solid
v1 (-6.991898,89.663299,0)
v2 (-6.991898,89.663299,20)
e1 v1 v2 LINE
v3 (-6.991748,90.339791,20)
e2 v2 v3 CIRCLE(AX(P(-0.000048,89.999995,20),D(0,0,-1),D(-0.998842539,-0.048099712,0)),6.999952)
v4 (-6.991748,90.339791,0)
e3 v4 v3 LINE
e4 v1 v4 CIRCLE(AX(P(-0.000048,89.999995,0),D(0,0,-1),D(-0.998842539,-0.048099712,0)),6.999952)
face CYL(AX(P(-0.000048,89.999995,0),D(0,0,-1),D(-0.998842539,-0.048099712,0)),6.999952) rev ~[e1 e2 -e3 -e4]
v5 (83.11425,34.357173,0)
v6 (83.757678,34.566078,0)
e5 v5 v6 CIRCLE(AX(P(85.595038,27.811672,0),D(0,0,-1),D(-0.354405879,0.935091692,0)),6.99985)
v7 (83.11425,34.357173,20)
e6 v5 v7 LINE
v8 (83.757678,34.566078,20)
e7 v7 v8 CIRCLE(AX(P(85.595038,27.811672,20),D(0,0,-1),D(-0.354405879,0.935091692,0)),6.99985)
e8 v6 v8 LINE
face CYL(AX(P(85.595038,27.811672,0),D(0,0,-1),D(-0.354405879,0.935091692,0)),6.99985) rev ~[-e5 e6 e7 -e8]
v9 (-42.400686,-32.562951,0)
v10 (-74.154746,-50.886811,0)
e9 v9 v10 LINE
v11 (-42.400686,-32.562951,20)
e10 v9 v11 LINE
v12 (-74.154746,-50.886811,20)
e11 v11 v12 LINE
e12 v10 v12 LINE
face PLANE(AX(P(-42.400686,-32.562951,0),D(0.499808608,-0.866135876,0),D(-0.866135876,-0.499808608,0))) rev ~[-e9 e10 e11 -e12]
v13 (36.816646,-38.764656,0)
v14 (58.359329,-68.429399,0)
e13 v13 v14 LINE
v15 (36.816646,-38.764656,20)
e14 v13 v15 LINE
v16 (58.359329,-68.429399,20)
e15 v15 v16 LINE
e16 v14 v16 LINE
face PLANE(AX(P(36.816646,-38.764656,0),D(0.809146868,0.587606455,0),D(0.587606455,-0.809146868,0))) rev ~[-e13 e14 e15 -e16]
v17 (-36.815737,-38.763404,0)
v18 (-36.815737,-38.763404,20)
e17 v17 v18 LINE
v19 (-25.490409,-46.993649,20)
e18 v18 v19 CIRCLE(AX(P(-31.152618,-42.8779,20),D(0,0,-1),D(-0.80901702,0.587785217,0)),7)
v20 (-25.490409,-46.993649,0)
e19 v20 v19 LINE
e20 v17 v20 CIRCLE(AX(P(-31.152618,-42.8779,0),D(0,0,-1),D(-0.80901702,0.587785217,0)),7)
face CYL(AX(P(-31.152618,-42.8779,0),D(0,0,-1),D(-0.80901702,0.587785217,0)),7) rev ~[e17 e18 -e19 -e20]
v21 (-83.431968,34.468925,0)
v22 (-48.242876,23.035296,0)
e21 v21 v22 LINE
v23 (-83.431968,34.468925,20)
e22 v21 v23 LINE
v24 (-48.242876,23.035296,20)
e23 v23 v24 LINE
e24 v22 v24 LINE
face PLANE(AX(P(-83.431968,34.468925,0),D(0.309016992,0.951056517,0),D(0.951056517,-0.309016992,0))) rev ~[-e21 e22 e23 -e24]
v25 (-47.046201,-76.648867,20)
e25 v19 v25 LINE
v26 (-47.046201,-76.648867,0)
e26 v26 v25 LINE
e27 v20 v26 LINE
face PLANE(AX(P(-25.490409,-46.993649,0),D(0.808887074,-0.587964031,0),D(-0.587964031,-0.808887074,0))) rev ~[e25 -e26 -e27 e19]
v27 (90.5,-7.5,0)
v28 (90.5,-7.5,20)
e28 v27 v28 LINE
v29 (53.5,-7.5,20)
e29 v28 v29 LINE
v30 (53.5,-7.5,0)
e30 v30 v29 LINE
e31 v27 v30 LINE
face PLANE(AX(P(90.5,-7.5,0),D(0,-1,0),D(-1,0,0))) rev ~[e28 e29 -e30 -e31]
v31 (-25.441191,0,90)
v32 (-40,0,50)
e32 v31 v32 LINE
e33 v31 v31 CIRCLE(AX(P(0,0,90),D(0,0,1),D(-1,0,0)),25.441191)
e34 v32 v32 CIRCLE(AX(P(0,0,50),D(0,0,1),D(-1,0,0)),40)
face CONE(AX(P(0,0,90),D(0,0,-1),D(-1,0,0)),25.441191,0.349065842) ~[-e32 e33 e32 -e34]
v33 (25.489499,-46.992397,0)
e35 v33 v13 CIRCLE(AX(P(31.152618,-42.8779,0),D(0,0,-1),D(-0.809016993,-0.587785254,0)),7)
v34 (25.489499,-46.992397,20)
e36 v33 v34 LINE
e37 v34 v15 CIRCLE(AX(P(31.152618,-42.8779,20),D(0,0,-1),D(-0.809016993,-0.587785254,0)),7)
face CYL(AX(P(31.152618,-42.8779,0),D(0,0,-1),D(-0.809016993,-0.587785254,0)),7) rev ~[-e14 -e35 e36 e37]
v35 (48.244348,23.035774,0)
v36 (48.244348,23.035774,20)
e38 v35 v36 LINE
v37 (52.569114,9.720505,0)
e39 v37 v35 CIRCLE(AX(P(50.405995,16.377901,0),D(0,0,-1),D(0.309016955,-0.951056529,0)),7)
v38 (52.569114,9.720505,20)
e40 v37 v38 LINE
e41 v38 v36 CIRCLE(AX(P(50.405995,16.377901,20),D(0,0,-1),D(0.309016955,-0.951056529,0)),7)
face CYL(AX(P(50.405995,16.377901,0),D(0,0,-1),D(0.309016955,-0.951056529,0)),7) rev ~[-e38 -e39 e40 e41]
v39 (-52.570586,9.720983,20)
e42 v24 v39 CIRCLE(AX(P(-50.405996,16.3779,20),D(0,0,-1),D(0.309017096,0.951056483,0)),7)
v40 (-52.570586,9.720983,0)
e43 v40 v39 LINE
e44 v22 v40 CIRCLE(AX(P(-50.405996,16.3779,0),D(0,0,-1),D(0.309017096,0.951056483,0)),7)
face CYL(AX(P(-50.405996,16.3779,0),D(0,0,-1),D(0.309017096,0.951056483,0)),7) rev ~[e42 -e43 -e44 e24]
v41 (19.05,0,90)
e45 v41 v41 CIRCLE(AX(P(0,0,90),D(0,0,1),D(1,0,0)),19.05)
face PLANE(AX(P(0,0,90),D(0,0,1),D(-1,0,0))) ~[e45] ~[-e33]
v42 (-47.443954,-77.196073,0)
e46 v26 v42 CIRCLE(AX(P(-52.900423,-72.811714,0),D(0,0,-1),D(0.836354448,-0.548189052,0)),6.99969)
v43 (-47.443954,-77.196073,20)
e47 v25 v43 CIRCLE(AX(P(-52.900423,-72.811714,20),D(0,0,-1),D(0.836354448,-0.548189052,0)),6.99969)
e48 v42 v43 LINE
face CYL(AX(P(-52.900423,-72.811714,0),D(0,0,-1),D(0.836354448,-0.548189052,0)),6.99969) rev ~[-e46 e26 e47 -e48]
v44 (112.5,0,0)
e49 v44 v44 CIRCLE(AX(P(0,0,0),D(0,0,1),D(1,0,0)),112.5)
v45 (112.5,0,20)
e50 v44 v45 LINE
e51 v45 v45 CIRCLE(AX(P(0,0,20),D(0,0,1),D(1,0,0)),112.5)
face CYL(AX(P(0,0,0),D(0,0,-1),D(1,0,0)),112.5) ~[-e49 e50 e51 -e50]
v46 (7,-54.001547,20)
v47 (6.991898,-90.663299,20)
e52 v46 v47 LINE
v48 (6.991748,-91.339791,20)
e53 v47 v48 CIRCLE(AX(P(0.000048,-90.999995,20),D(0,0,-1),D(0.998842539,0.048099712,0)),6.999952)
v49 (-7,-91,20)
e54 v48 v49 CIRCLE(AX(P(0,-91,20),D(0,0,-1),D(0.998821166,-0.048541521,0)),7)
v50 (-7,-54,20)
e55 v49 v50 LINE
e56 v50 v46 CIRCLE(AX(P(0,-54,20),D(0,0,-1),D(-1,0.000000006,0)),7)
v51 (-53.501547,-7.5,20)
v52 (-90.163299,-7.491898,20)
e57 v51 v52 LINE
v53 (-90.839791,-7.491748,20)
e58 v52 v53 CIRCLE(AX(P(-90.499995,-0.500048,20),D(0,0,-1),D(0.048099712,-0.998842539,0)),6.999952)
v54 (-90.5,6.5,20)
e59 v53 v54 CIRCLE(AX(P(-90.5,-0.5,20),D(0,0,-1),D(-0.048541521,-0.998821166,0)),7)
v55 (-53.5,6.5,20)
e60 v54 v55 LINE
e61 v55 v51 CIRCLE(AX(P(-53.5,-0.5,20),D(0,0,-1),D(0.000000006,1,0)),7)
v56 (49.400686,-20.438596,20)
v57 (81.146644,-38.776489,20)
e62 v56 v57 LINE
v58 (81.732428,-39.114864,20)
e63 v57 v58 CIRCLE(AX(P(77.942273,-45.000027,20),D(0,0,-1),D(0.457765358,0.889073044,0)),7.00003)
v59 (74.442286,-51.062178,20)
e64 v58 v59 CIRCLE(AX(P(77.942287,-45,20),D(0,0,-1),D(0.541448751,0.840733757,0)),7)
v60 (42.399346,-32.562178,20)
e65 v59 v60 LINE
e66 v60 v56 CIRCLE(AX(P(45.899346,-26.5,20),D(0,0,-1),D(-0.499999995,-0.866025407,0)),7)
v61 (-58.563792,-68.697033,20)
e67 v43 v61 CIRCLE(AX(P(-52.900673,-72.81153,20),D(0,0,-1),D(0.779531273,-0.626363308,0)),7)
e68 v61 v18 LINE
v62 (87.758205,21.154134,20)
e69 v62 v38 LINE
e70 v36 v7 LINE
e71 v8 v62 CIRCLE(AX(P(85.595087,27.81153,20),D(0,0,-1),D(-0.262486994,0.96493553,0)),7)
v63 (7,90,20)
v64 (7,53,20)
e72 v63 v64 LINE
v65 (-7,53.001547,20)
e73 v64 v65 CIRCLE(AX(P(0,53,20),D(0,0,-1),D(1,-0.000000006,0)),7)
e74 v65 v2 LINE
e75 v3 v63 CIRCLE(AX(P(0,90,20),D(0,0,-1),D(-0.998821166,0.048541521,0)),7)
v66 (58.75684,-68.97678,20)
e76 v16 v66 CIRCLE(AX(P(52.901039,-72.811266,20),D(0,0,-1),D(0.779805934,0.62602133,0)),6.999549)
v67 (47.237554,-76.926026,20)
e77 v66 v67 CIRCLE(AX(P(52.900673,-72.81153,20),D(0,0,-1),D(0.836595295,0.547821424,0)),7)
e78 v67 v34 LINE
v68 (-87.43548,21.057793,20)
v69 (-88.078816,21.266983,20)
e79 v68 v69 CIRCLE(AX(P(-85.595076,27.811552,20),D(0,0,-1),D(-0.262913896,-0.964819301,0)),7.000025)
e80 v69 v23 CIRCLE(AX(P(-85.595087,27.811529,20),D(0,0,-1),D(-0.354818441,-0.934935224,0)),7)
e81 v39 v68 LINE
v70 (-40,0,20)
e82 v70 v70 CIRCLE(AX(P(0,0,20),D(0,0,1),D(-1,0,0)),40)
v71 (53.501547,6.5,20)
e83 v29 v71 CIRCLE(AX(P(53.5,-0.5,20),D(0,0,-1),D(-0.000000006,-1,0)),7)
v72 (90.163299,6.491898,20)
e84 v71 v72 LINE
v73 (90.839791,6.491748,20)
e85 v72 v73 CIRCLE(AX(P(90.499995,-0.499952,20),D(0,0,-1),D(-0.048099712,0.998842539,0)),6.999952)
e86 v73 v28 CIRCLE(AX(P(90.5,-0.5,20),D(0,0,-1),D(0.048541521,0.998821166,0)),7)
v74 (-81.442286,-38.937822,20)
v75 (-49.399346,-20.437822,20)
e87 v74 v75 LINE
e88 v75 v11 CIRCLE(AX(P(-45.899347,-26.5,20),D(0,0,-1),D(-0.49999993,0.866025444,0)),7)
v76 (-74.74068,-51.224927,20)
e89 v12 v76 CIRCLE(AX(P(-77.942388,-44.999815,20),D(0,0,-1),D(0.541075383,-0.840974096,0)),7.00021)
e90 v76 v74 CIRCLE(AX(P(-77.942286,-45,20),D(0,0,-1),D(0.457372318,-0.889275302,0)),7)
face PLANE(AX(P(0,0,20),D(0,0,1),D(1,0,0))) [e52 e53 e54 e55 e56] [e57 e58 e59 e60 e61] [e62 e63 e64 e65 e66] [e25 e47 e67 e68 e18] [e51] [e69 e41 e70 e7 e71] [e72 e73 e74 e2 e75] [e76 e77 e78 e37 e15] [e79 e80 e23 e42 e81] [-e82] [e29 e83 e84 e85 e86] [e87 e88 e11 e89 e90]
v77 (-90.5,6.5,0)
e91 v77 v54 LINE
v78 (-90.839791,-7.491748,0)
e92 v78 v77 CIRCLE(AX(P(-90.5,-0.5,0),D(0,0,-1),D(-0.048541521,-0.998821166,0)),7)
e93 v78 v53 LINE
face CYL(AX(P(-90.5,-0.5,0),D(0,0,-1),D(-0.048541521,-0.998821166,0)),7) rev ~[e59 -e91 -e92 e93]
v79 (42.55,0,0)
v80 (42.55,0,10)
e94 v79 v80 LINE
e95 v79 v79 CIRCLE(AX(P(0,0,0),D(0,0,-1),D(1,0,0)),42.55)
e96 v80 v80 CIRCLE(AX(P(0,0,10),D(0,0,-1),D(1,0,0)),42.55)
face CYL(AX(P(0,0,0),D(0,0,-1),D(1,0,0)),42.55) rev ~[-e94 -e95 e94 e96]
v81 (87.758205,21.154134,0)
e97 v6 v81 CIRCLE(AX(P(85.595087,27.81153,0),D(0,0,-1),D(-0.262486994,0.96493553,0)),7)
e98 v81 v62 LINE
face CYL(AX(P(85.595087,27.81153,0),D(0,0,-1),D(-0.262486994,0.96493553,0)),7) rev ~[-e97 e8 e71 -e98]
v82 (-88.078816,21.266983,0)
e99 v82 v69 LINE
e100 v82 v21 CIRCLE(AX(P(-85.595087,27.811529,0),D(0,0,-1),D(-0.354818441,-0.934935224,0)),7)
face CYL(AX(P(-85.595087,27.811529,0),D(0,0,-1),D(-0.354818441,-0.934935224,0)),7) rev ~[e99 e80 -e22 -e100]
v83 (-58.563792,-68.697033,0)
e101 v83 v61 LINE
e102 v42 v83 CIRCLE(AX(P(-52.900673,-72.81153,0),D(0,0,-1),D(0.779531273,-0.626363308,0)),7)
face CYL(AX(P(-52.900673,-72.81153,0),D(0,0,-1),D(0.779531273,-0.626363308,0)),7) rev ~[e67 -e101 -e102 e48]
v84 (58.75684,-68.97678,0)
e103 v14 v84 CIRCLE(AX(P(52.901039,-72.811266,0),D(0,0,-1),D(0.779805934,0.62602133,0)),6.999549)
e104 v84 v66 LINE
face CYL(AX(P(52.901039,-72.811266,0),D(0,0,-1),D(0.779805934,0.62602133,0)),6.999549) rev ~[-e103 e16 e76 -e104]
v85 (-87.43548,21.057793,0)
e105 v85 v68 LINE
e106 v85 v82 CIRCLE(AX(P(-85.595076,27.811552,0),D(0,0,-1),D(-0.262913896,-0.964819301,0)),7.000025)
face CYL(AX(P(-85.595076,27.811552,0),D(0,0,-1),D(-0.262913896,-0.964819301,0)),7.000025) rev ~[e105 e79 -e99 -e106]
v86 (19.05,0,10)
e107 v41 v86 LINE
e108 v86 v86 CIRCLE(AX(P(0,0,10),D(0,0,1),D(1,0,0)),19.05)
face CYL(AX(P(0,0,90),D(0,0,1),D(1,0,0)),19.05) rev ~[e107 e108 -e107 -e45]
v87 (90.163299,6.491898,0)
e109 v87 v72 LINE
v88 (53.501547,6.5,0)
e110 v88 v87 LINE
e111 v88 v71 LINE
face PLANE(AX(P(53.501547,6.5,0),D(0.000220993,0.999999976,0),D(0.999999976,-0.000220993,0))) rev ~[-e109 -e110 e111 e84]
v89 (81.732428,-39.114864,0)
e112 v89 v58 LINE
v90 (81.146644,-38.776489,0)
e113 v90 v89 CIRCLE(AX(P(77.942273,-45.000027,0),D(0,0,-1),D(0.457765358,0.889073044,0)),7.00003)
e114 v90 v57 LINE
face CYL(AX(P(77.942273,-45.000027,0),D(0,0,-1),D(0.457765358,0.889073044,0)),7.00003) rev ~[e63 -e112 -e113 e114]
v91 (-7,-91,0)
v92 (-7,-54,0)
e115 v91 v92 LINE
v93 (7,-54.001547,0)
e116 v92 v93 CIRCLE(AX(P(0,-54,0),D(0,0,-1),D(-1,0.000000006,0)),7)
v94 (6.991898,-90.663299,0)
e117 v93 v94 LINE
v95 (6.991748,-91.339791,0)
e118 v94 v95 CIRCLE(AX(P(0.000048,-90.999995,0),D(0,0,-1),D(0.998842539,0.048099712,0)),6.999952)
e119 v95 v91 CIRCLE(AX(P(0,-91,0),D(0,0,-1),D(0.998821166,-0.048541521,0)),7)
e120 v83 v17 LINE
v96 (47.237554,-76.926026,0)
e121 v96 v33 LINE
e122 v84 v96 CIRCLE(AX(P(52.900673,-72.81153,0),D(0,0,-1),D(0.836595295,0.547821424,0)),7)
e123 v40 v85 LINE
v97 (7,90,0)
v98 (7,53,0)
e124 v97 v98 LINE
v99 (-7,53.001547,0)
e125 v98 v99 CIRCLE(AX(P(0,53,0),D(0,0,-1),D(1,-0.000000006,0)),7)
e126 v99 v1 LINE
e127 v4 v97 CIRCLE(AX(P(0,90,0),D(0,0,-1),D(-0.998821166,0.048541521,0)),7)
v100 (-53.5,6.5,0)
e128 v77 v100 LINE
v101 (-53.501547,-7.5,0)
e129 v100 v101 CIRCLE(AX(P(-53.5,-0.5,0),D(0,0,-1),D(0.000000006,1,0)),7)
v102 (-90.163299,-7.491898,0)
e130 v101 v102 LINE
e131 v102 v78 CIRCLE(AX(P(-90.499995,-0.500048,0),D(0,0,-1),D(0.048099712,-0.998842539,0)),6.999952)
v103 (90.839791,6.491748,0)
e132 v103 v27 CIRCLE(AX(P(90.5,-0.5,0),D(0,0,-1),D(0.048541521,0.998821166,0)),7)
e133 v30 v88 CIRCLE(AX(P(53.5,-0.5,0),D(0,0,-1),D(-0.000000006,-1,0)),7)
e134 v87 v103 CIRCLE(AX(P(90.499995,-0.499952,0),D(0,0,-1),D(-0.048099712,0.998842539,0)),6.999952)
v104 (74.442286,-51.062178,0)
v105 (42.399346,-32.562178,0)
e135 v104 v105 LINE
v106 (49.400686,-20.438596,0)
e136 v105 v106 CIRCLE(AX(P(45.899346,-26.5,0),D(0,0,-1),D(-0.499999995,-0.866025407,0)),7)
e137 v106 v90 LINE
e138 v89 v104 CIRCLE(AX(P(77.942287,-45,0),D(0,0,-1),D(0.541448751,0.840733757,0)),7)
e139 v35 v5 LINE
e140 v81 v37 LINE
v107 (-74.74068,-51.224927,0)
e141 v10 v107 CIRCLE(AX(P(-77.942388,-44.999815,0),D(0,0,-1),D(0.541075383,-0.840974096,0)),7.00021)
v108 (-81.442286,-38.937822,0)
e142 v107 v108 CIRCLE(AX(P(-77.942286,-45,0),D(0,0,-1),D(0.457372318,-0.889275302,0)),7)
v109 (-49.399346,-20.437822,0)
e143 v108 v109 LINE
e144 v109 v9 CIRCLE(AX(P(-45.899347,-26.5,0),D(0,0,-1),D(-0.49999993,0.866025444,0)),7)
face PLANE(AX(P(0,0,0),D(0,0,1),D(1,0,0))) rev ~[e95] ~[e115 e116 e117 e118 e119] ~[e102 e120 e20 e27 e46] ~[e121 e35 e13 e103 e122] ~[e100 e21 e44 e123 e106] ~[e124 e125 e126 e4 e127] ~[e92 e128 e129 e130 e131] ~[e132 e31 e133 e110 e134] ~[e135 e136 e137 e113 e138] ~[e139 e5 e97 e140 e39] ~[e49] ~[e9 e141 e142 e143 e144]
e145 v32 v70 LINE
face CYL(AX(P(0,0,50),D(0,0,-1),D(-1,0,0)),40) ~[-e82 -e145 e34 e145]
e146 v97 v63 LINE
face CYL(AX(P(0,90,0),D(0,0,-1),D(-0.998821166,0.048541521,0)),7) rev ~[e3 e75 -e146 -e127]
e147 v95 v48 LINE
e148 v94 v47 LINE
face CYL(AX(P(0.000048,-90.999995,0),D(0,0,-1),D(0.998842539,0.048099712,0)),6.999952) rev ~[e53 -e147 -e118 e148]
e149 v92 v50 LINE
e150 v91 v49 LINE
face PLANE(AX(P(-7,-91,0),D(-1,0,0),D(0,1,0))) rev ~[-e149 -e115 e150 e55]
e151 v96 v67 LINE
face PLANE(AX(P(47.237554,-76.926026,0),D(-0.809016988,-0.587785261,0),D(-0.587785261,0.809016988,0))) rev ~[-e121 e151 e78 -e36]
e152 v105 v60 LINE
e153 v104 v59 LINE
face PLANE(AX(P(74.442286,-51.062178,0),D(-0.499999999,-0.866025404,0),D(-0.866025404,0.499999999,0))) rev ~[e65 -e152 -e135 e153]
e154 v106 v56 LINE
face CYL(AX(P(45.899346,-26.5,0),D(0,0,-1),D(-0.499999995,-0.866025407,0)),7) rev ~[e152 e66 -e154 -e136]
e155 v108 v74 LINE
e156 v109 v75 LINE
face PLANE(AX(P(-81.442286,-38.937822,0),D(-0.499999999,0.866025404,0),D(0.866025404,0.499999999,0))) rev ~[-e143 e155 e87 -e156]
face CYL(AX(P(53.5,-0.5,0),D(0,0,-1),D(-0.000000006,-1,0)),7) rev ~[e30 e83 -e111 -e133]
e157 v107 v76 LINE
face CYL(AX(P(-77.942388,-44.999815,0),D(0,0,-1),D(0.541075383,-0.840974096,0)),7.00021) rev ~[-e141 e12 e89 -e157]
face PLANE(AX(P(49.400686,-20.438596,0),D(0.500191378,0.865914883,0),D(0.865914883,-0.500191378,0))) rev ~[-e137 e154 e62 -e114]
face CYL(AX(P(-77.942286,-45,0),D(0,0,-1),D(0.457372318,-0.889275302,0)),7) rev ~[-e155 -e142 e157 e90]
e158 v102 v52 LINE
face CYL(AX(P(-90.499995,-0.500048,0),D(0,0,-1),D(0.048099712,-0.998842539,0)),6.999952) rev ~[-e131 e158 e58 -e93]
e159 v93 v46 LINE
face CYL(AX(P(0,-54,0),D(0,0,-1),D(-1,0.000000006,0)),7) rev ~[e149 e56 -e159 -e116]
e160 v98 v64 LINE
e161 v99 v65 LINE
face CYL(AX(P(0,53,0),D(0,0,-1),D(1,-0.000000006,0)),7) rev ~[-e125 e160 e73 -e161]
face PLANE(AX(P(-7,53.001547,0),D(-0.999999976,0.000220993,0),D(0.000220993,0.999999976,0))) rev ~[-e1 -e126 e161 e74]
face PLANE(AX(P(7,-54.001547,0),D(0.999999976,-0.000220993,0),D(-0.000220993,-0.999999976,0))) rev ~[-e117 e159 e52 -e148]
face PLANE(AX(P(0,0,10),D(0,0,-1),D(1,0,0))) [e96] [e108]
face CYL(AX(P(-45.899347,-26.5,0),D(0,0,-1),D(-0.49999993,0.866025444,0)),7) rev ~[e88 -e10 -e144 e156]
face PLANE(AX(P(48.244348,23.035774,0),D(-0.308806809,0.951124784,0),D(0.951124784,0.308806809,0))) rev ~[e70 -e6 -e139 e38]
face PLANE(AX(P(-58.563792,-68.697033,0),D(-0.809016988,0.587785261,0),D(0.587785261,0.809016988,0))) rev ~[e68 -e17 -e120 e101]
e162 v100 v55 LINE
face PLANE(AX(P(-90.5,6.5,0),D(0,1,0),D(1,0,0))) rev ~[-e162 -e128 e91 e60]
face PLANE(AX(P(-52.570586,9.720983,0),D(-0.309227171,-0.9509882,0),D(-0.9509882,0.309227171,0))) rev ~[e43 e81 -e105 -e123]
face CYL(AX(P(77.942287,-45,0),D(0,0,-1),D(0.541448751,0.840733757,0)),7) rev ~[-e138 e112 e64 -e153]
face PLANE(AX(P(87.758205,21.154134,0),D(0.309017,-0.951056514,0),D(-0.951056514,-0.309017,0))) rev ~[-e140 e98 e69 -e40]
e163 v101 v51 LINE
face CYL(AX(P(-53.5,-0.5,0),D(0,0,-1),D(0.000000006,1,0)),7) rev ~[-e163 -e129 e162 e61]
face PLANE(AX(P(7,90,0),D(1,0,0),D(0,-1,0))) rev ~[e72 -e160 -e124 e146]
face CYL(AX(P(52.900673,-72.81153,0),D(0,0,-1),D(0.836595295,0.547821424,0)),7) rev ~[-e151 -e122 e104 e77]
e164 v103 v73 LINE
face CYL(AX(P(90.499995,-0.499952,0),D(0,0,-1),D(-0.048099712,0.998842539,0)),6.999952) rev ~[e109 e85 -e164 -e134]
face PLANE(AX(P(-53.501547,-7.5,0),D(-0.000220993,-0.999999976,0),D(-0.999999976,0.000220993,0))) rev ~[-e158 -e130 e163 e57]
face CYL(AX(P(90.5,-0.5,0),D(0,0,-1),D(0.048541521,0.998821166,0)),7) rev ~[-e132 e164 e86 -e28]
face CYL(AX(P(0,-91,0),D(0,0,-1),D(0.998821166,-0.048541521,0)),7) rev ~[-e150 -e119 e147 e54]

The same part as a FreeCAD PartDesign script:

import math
import FreeCAD as App
import Part
import Sketcher
Q = App.Units.Quantity

doc = App.newDocument("Part")
params = doc.addObject("Spreadsheet::Sheet", "Params")
for row, (alias, value) in enumerate([
    ("sketch1_diameter", "225 mm"),
    ("sketch1_radius", "7 mm"),
    ("sketch1_radius2", "7 mm"),
    ("sketch1_radius3", "7 mm"),
    ("sketch1_radius4", "7 mm"),
    ("pad1_length", "20 mm"),
    ("sketch2_width", "40 mm"),
    ("sketch2_height", "30 mm"),
    ("sketch2_height2", "70 mm"),
    ("revolution_angle", "360 deg"),
    ("sketch3_diameter", "38.1 mm"),
    ("sketch4_diameter", "85.1 mm"),
    ("pocket2_length", "10 mm"),
], start=1):
    params.set(f"A{row}", alias)
    params.set(f"B{row}", "=" + value)
    params.setAlias(f"B{row}", alias)

body = doc.addObject("PartDesign::Body", "Body")

sketch1 = body.newObject("Sketcher::SketchObject", "Sketch")
sketch1.AttachmentSupport = (doc.getObject("XY_Plane"), [""])
sketch1.MapMode = "FlatFace"
sketch1.addGeometry(Part.Circle(App.Vector(0, 0, 0), App.Vector(0, 0, 1), 112.5), False)
sketch1.addGeometry(Part.ArcOfCircle(Part.Circle(App.Vector(-52.900423, -72.811714, 0), App.Vector(0, 0, 1), 6.99969), math.radians(-38.782431), math.radians(-33.242863)), False)
sketch1.addGeometry(Part.ArcOfCircle(Part.Circle(App.Vector(-52.900673, -72.81153, 0), App.Vector(0, 0, 1), 7), math.radians(144), math.radians(321.217679)), False)
sketch1.addGeometry(Part.LineSegment(App.Vector(-58.563792, -68.697033, 0), App.Vector(-36.815737, -38.763404, 0)), False)
sketch1.addGeometry(Part.ArcOfCircle(Part.Circle(App.Vector(-31.152618, -42.8779, 0), App.Vector(0, 0, 1), 7), math.radians(-36.012667), math.radians(144.000003)), False)
sketch1.addGeometry(Part.LineSegment(App.Vector(-25.490409, -46.993649, 0), App.Vector(-47.046201, -76.648867, 0)), False)
sketch1.addGeometry(Part.ArcOfCircle(Part.Circle(App.Vector(-77.942388, -44.999815, 0), App.Vector(0, 0, 1), 7.00021), math.radians(-62.782276), math.radians(-57.243125)), False)
sketch1.addGeometry(Part.ArcOfCircle(Part.Circle(App.Vector(-77.942286, -45, 0), App.Vector(0, 0, 1), 7), math.radians(119.999998), math.radians(297.217678)), False)
sketch1.addGeometry(Part.LineSegment(App.Vector(-81.442286, -38.937822, 0), App.Vector(-49.399346, -20.437822, 0)), False)
sketch1.addGeometry(Part.ArcOfCircle(Part.Circle(App.Vector(-45.899347, -26.5, 0), App.Vector(0, 0, 1), 7), math.radians(-60.012659), math.radians(119.999995)), False)
sketch1.addGeometry(Part.LineSegment(App.Vector(-42.400686, -32.562951, 0), App.Vector(-74.154746, -50.886811, 0)), False)
sketch1.addGeometry(Part.ArcOfCircle(Part.Circle(App.Vector(-90.499995, -0.500048, 0), App.Vector(0, 0, 1), 6.999952), math.radians(-92.782383), math.radians(-87.243026)), False)
sketch1.addGeometry(Part.ArcOfCircle(Part.Circle(App.Vector(-90.5, -0.5, 0), App.Vector(0, 0, 1), 7), math.radians(89.999997), math.radians(267.217682)), False)
sketch1.addGeometry(Part.LineSegment(App.Vector(-90.5, 6.5, 0), App.Vector(-53.5, 6.5, 0)), False)
sketch1.addGeometry(Part.ArcOfCircle(Part.Circle(App.Vector(-53.5, -0.5, 0), App.Vector(0, 0, 1), 7), math.radians(-90.012662), math.radians(90)), False)
sketch1.addGeometry(Part.LineSegment(App.Vector(-53.501547, -7.5, 0), App.Vector(-90.163299, -7.491898, 0)), False)
sketch1.addGeometry(Part.ArcOfCircle(Part.Circle(App.Vector(0.000048, -90.999995, 0), App.Vector(0, 0, 1), 6.999952), math.radians(-2.782383), math.radians(2.756974)), False)
sketch1.addGeometry(Part.ArcOfCircle(Part.Circle(App.Vector(0, -91, 0), App.Vector(0, 0, 1), 7), math.radians(179.999997), math.radians(357.217682)), False)
sketch1.addGeometry(Part.LineSegment(App.Vector(-7, -91, 0), App.Vector(-7, -54, 0)), False)
sketch1.addGeometry(Part.ArcOfCircle(Part.Circle(App.Vector(0, -54, 0), App.Vector(0, 0, 1), 7), math.radians(-0.012662), math.radians(180)), False)
sketch1.addGeometry(Part.LineSegment(App.Vector(7, -54.001547, 0), App.Vector(6.991898, -90.663299, 0)), False)
sketch1.addGeometry(Part.ArcOfCircle(Part.Circle(App.Vector(52.901039, -72.811266, 0), App.Vector(0, 0, 1), 6.999549), math.radians(33.217516), math.radians(38.75719)), False)
sketch1.addGeometry(Part.ArcOfCircle(Part.Circle(App.Vector(52.900673, -72.81153, 0), App.Vector(0, 0, 1), 7), math.radians(-144.000005), math.radians(33.217682)), False)
sketch1.addGeometry(Part.LineSegment(App.Vector(47.237554, -76.926026, 0), App.Vector(25.489499, -46.992397, 0)), False)
sketch1.addGeometry(Part.ArcOfCircle(Part.Circle(App.Vector(31.152618, -42.8779, 0), App.Vector(0, 0, 1), 7), math.radians(35.987332), math.radians(216)), False)
sketch1.addGeometry(Part.LineSegment(App.Vector(36.816646, -38.764656, 0), App.Vector(58.359329, -68.429399, 0)), False)
sketch1.addGeometry(Part.ArcOfCircle(Part.Circle(App.Vector(77.942273, -45.000027, 0), App.Vector(0, 0, 1), 7.00003), math.radians(57.217706), math.radians(62.756996)), False)
sketch1.addGeometry(Part.ArcOfCircle(Part.Circle(App.Vector(77.942287, -45, 0), App.Vector(0, 0, 1), 7), math.radians(-120.000006), math.radians(57.217684)), False)
sketch1.addGeometry(Part.LineSegment(App.Vector(74.442286, -51.062178, 0), App.Vector(42.399346, -32.562178, 0)), False)
sketch1.addGeometry(Part.ArcOfCircle(Part.Circle(App.Vector(45.899346, -26.5, 0), App.Vector(0, 0, 1), 7), math.radians(59.987335), math.radians(240)), False)
sketch1.addGeometry(Part.LineSegment(App.Vector(49.400686, -20.438596, 0), App.Vector(81.146644, -38.776489, 0)), False)
sketch1.addGeometry(Part.ArcOfCircle(Part.Circle(App.Vector(-85.595076, 27.811552, 0), App.Vector(0, 0, 1), 7.000025), math.radians(-110.782334), math.radians(-105.243033)), False)
sketch1.addGeometry(Part.ArcOfCircle(Part.Circle(App.Vector(-85.595087, 27.811529, 0), App.Vector(0, 0, 1), 7), math.radians(72), math.radians(249.217683)), False)
sketch1.addGeometry(Part.LineSegment(App.Vector(-83.431968, 34.468925, 0), App.Vector(-48.242876, 23.035296, 0)), False)
sketch1.addGeometry(Part.ArcOfCircle(Part.Circle(App.Vector(-50.405996, 16.3779, 0), App.Vector(0, 0, 1), 7), math.radians(-108.012663), math.radians(71.999994)), False)
sketch1.addGeometry(Part.LineSegment(App.Vector(-52.570586, 9.720983, 0), App.Vector(-87.43548, 21.057793, 0)), False)
sketch1.addGeometry(Part.LineSegment(App.Vector(7, 90, 0), App.Vector(7, 53, 0)), False)
sketch1.addGeometry(Part.ArcOfCircle(Part.Circle(App.Vector(0, 53, 0), App.Vector(0, 0, 1), 7), math.radians(179.987338), math.radians(360)), False)
sketch1.addGeometry(Part.LineSegment(App.Vector(-7, 53.001547, 0), App.Vector(-6.991898, 89.663299, 0)), False)
sketch1.addGeometry(Part.ArcOfCircle(Part.Circle(App.Vector(-0.000048, 89.999995, 0), App.Vector(0, 0, 1), 6.999952), math.radians(177.217617), math.radians(182.756974)), False)
sketch1.addGeometry(Part.ArcOfCircle(Part.Circle(App.Vector(0, 90, 0), App.Vector(0, 0, 1), 7), math.radians(-0.000003), math.radians(177.217682)), False)
sketch1.addGeometry(Part.ArcOfCircle(Part.Circle(App.Vector(90.499995, -0.499952, 0), App.Vector(0, 0, 1), 6.999952), math.radians(87.217617), math.radians(92.756974)), False)
sketch1.addGeometry(Part.ArcOfCircle(Part.Circle(App.Vector(90.5, -0.5, 0), App.Vector(0, 0, 1), 7), math.radians(-90.000003), math.radians(87.217682)), False)
sketch1.addGeometry(Part.LineSegment(App.Vector(90.5, -7.5, 0), App.Vector(53.5, -7.5, 0)), False)
sketch1.addGeometry(Part.ArcOfCircle(Part.Circle(App.Vector(53.5, -0.5, 0), App.Vector(0, 0, 1), 7), math.radians(89.987338), math.radians(270)), False)
sketch1.addGeometry(Part.LineSegment(App.Vector(53.501547, 6.5, 0), App.Vector(90.163299, 6.491898, 0)), False)
sketch1.addGeometry(Part.ArcOfCircle(Part.Circle(App.Vector(85.595038, 27.811672, 0), App.Vector(0, 0, 1), 6.99985), math.radians(105.217601), math.radians(110.757036)), False)
sketch1.addGeometry(Part.ArcOfCircle(Part.Circle(App.Vector(85.595087, 27.81153, 0), App.Vector(0, 0, 1), 7), math.radians(-72.000006), math.radians(105.217683)), False)
sketch1.addGeometry(Part.LineSegment(App.Vector(87.758205, 21.154134, 0), App.Vector(52.569114, 9.720505, 0)), False)
sketch1.addGeometry(Part.ArcOfCircle(Part.Circle(App.Vector(50.405995, 16.377901, 0), App.Vector(0, 0, 1), 7), math.radians(107.987336), math.radians(287.999998)), False)
sketch1.addGeometry(Part.LineSegment(App.Vector(48.244348, 23.035774, 0), App.Vector(83.11425, 34.357173, 0)), False)
sketch1.addConstraint(Sketcher.Constraint("Coincident", 1, 1, 2, 2))
sketch1.addConstraint(Sketcher.Constraint("Coincident", 2, 1, 3, 1))
sketch1.addConstraint(Sketcher.Constraint("Coincident", 3, 2, 4, 2))
sketch1.addConstraint(Sketcher.Constraint("Coincident", 4, 1, 5, 1))
sketch1.addConstraint(Sketcher.Constraint("Coincident", 5, 2, 1, 2))
sketch1.addConstraint(Sketcher.Constraint("Coincident", 6, 1, 7, 2))
sketch1.addConstraint(Sketcher.Constraint("Coincident", 7, 1, 8, 1))
sketch1.addConstraint(Sketcher.Constraint("Coincident", 8, 2, 9, 2))
sketch1.addConstraint(Sketcher.Constraint("Coincident", 9, 1, 10, 1))
sketch1.addConstraint(Sketcher.Constraint("Coincident", 10, 2, 6, 2))
sketch1.addConstraint(Sketcher.Constraint("Coincident", 11, 1, 12, 2))
sketch1.addConstraint(Sketcher.Constraint("Coincident", 12, 1, 13, 1))
sketch1.addConstraint(Sketcher.Constraint("Coincident", 13, 2, 14, 2))
sketch1.addConstraint(Sketcher.Constraint("Coincident", 14, 1, 15, 1))
sketch1.addConstraint(Sketcher.Constraint("Coincident", 15, 2, 11, 2))
sketch1.addConstraint(Sketcher.Constraint("Coincident", 16, 1, 17, 2))
sketch1.addConstraint(Sketcher.Constraint("Coincident", 17, 1, 18, 1))
sketch1.addConstraint(Sketcher.Constraint("Coincident", 18, 2, 19, 2))
sketch1.addConstraint(Sketcher.Constraint("Coincident", 19, 1, 20, 1))
sketch1.addConstraint(Sketcher.Constraint("Coincident", 20, 2, 16, 2))
sketch1.addConstraint(Sketcher.Constraint("Coincident", 21, 1, 22, 2))
sketch1.addConstraint(Sketcher.Constraint("Coincident", 22, 1, 23, 1))
sketch1.addConstraint(Sketcher.Constraint("Coincident", 23, 2, 24, 2))
sketch1.addConstraint(Sketcher.Constraint("Coincident", 24, 1, 25, 1))
sketch1.addConstraint(Sketcher.Constraint("Coincident", 25, 2, 21, 2))
sketch1.addConstraint(Sketcher.Constraint("Coincident", 26, 1, 27, 2))
sketch1.addConstraint(Sketcher.Constraint("Coincident", 27, 1, 28, 1))
sketch1.addConstraint(Sketcher.Constraint("Coincident", 28, 2, 29, 2))
sketch1.addConstraint(Sketcher.Constraint("Coincident", 29, 1, 30, 1))
sketch1.addConstraint(Sketcher.Constraint("Coincident", 30, 2, 26, 2))
sketch1.addConstraint(Sketcher.Constraint("Coincident", 31, 1, 32, 2))
sketch1.addConstraint(Sketcher.Constraint("Coincident", 32, 1, 33, 1))
sketch1.addConstraint(Sketcher.Constraint("Coincident", 33, 2, 34, 2))
sketch1.addConstraint(Sketcher.Constraint("Coincident", 34, 1, 35, 1))
sketch1.addConstraint(Sketcher.Constraint("Coincident", 35, 2, 31, 2))
sketch1.addConstraint(Sketcher.Constraint("Coincident", 36, 2, 37, 2))
sketch1.addConstraint(Sketcher.Constraint("Coincident", 37, 1, 38, 1))
sketch1.addConstraint(Sketcher.Constraint("Coincident", 38, 2, 39, 2))
sketch1.addConstraint(Sketcher.Constraint("Coincident", 39, 1, 40, 2))
sketch1.addConstraint(Sketcher.Constraint("Coincident", 40, 1, 36, 1))
sketch1.addConstraint(Sketcher.Constraint("Coincident", 41, 1, 42, 2))
sketch1.addConstraint(Sketcher.Constraint("Coincident", 42, 1, 43, 1))
sketch1.addConstraint(Sketcher.Constraint("Coincident", 43, 2, 44, 2))
sketch1.addConstraint(Sketcher.Constraint("Coincident", 44, 1, 45, 1))
sketch1.addConstraint(Sketcher.Constraint("Coincident", 45, 2, 41, 2))
sketch1.addConstraint(Sketcher.Constraint("Coincident", 46, 1, 47, 2))
sketch1.addConstraint(Sketcher.Constraint("Coincident", 47, 1, 48, 1))
sketch1.addConstraint(Sketcher.Constraint("Coincident", 48, 2, 49, 2))
sketch1.addConstraint(Sketcher.Constraint("Coincident", 49, 1, 50, 1))
sketch1.addConstraint(Sketcher.Constraint("Coincident", 50, 2, 46, 2))
sketch1.addConstraint(Sketcher.Constraint("Horizontal", 13))
sketch1.addConstraint(Sketcher.Constraint("Vertical", 18))
sketch1.addConstraint(Sketcher.Constraint("Vertical", 36))
sketch1.addConstraint(Sketcher.Constraint("Horizontal", 43))
sketch1.addConstraint(Sketcher.Constraint("Coincident", 0, 3, -1, 1))
sketch1.addConstraint(Sketcher.Constraint("PointOnObject", 17, 3, -2))
sketch1.addConstraint(Sketcher.Constraint("PointOnObject", 19, 3, -2))
sketch1.addConstraint(Sketcher.Constraint("PointOnObject", 37, 3, -2))
sketch1.addConstraint(Sketcher.Constraint("PointOnObject", 40, 3, -2))
sketch1.addConstraint(Sketcher.Constraint("Diameter", 0, 225.0))
sketch1.addConstraint(Sketcher.Constraint("Radius", 2, 7.0))
sketch1.addConstraint(Sketcher.Constraint("Radius", 4, 7.0))
sketch1.addConstraint(Sketcher.Constraint("Radius", 7, 7.0))
sketch1.addConstraint(Sketcher.Constraint("Radius", 9, 7.0))
sketch1.addConstraint(Sketcher.Constraint("Radius", 12, 7.0))
sketch1.addConstraint(Sketcher.Constraint("Radius", 14, 7.0))
sketch1.addConstraint(Sketcher.Constraint("Radius", 17, 7.0))
sketch1.addConstraint(Sketcher.Constraint("Radius", 22, 7.0))
sketch1.addConstraint(Sketcher.Constraint("Radius", 24, 7.0))
sketch1.addConstraint(Sketcher.Constraint("Radius", 27, 7.0))
sketch1.addConstraint(Sketcher.Constraint("Radius", 29, 7.0))
sketch1.addConstraint(Sketcher.Constraint("Radius", 32, 7.0))
sketch1.addConstraint(Sketcher.Constraint("Radius", 34, 7.0))
sketch1.addConstraint(Sketcher.Constraint("Radius", 37, 7.0))
sketch1.addConstraint(Sketcher.Constraint("Radius", 42, 7.0))
sketch1.addConstraint(Sketcher.Constraint("Radius", 44, 7.0))
sketch1.addConstraint(Sketcher.Constraint("Radius", 47, 7.0))
sketch1.addConstraint(Sketcher.Constraint("Radius", 49, 7.0))
sketch1.addConstraint(Sketcher.Constraint("DistanceX", 13, 1, 13, 2, 37.0))
sketch1.addConstraint(Sketcher.Constraint("DistanceX", 43, 2, 43, 1, 37.0))
sketch1.addConstraint(Sketcher.Constraint("DistanceY", 18, 1, 18, 2, 37.0))
sketch1.addConstraint(Sketcher.Constraint("DistanceY", 36, 2, 36, 1, 37.0))
sketch1.addConstraint(Sketcher.Constraint("Distance", 3, 37.000001))
sketch1.addConstraint(Sketcher.Constraint("Distance", 8, 37.0))
sketch1.addConstraint(Sketcher.Constraint("Distance", 23, 37.000001))
sketch1.addConstraint(Sketcher.Constraint("Distance", 28, 37.0))
sketch1.addConstraint(Sketcher.Constraint("Distance", 33, 37.000001))
sketch1.addConstraint(Sketcher.Constraint("Distance", 48, 37.0))
sketch1.addConstraint(Sketcher.Constraint("DistanceY", 7, 3, -1, 1, 45.0))
sketch1.addConstraint(Sketcher.Constraint("DistanceY", 17, 3, -1, 1, 91.0))
sketch1.addConstraint(Sketcher.Constraint("DistanceY", 19, 3, -1, 1, 54.0))
sketch1.addConstraint(Sketcher.Constraint("DistanceY", 27, 3, -1, 1, 45.0))
sketch1.addConstraint(Sketcher.Constraint("DistanceY", -1, 1, 37, 3, 53.0))
sketch1.addConstraint(Sketcher.Constraint("DistanceY", -1, 1, 40, 3, 90.0))
sketch1.addConstraint(Sketcher.Constraint("DistanceY", 17, 1, -1, 1, 91.0))
sketch1.addConstraint(Sketcher.Constraint("DistanceY", -1, 1, 36, 2, 53.0))
sketch1.addConstraint(Sketcher.Constraint("DistanceY", 9, 3, -1, 1, 26.5))
sketch1.addConstraint(Sketcher.Constraint("DistanceX", 12, 3, -1, 1, 90.5))
sketch1.addConstraint(Sketcher.Constraint("DistanceY", 12, 3, -1, 1, 0.5))
sketch1.addConstraint(Sketcher.Constraint("DistanceX", 14, 3, -1, 1, 53.5))
sketch1.addConstraint(Sketcher.Constraint("DistanceY", 29, 3, -1, 1, 26.5))
sketch1.addConstraint(Sketcher.Constraint("DistanceX", -1, 1, 42, 3, 90.5))
sketch1.addConstraint(Sketcher.Constraint("DistanceY", 42, 3, -1, 1, 0.5))
sketch1.addConstraint(Sketcher.Constraint("DistanceX", -1, 1, 44, 3, 53.5))
sketch1.addConstraint(Sketcher.Constraint("DistanceX", 12, 1, -1, 1, 90.5))
sketch1.addConstraint(Sketcher.Constraint("DistanceX", -1, 1, 42, 1, 90.5))
sketch1.addConstraint(Sketcher.Constraint("Radius", 1, 6.99969))
sketch1.addConstraint(Sketcher.Constraint("Radius", 6, 7.00021))
sketch1.addConstraint(Sketcher.Constraint("Radius", 21, 6.999549))
sketch1.addConstraint(Sketcher.Constraint("Radius", 26, 7.00003))
sketch1.addConstraint(Sketcher.Constraint("Radius", 46, 6.99985))
sketch1.addConstraint(Sketcher.Constraint("Radius", 11, 6.999952))
sketch1.addConstraint(Sketcher.Constraint("Radius", 16, 6.999952))
sketch1.addConstraint(Sketcher.Constraint("Radius", 31, 7.000025))
sketch1.addConstraint(Sketcher.Constraint("Radius", 39, 6.999952))
sketch1.addConstraint(Sketcher.Constraint("Radius", 41, 6.999952))
sketch1.addConstraint(Sketcher.Constraint("DistanceY", 4, 3, -1, 1, 42.8779))
sketch1.addConstraint(Sketcher.Constraint("DistanceY", 24, 3, -1, 1, 42.8779))
sketch1.addConstraint(Sketcher.Constraint("DistanceY", -1, 1, 34, 3, 16.3779))
sketch1.addConstraint(Sketcher.Constraint("DistanceY", -1, 1, 49, 3, 16.377901))
sketch1.addConstraint(Sketcher.Constraint("DistanceX", 5, 2, -1, 1, 47.046201))
sketch1.addConstraint(Sketcher.Constraint("DistanceX", 15, 2, -1, 1, 90.163299))
sketch1.addConstraint(Sketcher.Constraint("DistanceY", 20, 2, -1, 1, 90.663299))
sketch1.addConstraint(Sketcher.Constraint("DistanceX", -1, 1, 23, 2, 25.489499))
sketch1.addConstraint(Sketcher.Constraint("DistanceY", 25, 2, -1, 1, 68.429399))
sketch1.addConstraint(Sketcher.Constraint("DistanceY", -1, 1, 38, 2, 89.663299))
sketch1.addConstraint(Sketcher.Constraint("DistanceX", -1, 1, 45, 2, 90.163299))
sketch1.addConstraint(Sketcher.Constraint("DistanceY", 2, 3, -1, 1, 72.81153))
sketch1.addConstraint(Sketcher.Constraint("DistanceX", 4, 3, -1, 1, 31.152618))
sketch1.addConstraint(Sketcher.Constraint("DistanceX", -1, 1, 21, 3, 52.901039))
sketch1.addConstraint(Sketcher.Constraint("DistanceY", 22, 3, -1, 1, 72.81153))
sketch1.addConstraint(Sketcher.Constraint("DistanceY", -1, 1, 31, 3, 27.811552))
sketch1.addConstraint(Sketcher.Constraint("DistanceY", -1, 1, 32, 3, 27.811529))
sketch1.addConstraint(Sketcher.Constraint("DistanceY", -1, 1, 46, 3, 27.811672))
sketch1.addConstraint(Sketcher.Constraint("DistanceY", -1, 1, 47, 3, 27.81153))
sketch1.addConstraint(Sketcher.Constraint("DistanceX", 4, 1, -1, 1, 25.490409))
sketch1.addConstraint(Sketcher.Constraint("DistanceX", 6, 1, -1, 1, 74.74068))
sketch1.addConstraint(Sketcher.Constraint("DistanceY", 9, 1, -1, 1, 32.562951))
sketch1.addConstraint(Sketcher.Constraint("DistanceY", 10, 2, -1, 1, 50.886811))
sketch1.addConstraint(Sketcher.Constraint("DistanceX", 11, 1, -1, 1, 90.839791))
sketch1.addConstraint(Sketcher.Constraint("DistanceY", 16, 1, -1, 1, 91.339791))
sketch1.addConstraint(Sketcher.Constraint("DistanceX", -1, 1, 21, 1, 58.75684))
sketch1.addConstraint(Sketcher.Constraint("DistanceY", 21, 1, -1, 1, 68.97678))
sketch1.addConstraint(Sketcher.Constraint("DistanceX", -1, 1, 26, 1, 81.732428))
sketch1.addConstraint(Sketcher.Constraint("DistanceY", 27, 1, -1, 1, 51.062178))
sketch1.addConstraint(Sketcher.Constraint("DistanceY", 28, 2, -1, 1, 32.562178))
sketch1.addConstraint(Sketcher.Constraint("DistanceY", 30, 2, -1, 1, 38.776489))
sketch1.addConstraint(Sketcher.Constraint("DistanceX", 32, 1, -1, 1, 83.431968))
sketch1.addConstraint(Sketcher.Constraint("DistanceX", 35, 2, -1, 1, 87.43548))
sketch1.addConstraint(Sketcher.Constraint("DistanceY", -1, 1, 39, 1, 90.339791))
sketch1.addConstraint(Sketcher.Constraint("DistanceX", -1, 1, 41, 1, 90.839791))
sketch1.addConstraint(Sketcher.Constraint("DistanceY", -1, 1, 46, 1, 34.566078))
sketch1.addConstraint(Sketcher.Constraint("DistanceX", -1, 1, 49, 1, 48.244348))
sketch1.addConstraint(Sketcher.Constraint("DistanceX", -1, 1, 50, 2, 83.11425))
sketch1.addConstraint(Sketcher.Constraint("Distance", 5, 36.661753))
sketch1.addConstraint(Sketcher.Constraint("Distance", 10, 36.661754))
sketch1.addConstraint(Sketcher.Constraint("Distance", 15, 36.661753))
sketch1.addConstraint(Sketcher.Constraint("Distance", 20, 36.661753))
sketch1.addConstraint(Sketcher.Constraint("Distance", 25, 36.661753))
sketch1.addConstraint(Sketcher.Constraint("Distance", 30, 36.661753))
sketch1.addConstraint(Sketcher.Constraint("Distance", 35, 36.661752))
sketch1.addConstraint(Sketcher.Constraint("Distance", 38, 36.661753))
sketch1.addConstraint(Sketcher.Constraint("Distance", 45, 36.661753))
sketch1.addConstraint(Sketcher.Constraint("Distance", 50, 36.661753))
sketch1.addConstraint(Sketcher.Constraint("DistanceX", 1, 3, -1, 1, 52.900423))
sketch1.addConstraint(Sketcher.Constraint("DistanceX", 6, 3, -1, 1, 77.942388))
sketch1.addConstraint(Sketcher.Constraint("DistanceY", 6, 3, -1, 1, 44.999815))
sketch1.addConstraint(Sketcher.Constraint("DistanceX", 11, 3, -1, 1, 90.499995))
sketch1.addConstraint(Sketcher.Constraint("DistanceY", 16, 3, -1, 1, 90.999995))
sketch1.addConstraint(Sketcher.Constraint("DistanceX", -1, 1, 24, 3, 31.152618))
sketch1.addConstraint(Sketcher.Constraint("DistanceX", -1, 1, 26, 3, 77.942273))
sketch1.addConstraint(Sketcher.Constraint("DistanceY", 26, 3, -1, 1, 45.000027))
sketch1.addConstraint(Sketcher.Constraint("DistanceX", 31, 3, -1, 1, 85.595076))
sketch1.addConstraint(Sketcher.Constraint("DistanceX", 34, 3, -1, 1, 50.405996))
sketch1.addConstraint(Sketcher.Constraint("DistanceY", -1, 1, 39, 3, 89.999995))
sketch1.addConstraint(Sketcher.Constraint("DistanceX", -1, 1, 41, 3, 90.499995))
sketch1.addConstraint(Sketcher.Constraint("DistanceX", -1, 1, 46, 3, 85.595038))
sketch1.addConstraint(Sketcher.Constraint("DistanceX", 1, 1, -1, 1, 47.443954))
sketch1.addConstraint(Sketcher.Constraint("DistanceX", 2, 1, -1, 1, 58.563792))
sketch1.addConstraint(Sketcher.Constraint("DistanceX", 7, 1, -1, 1, 81.442286))
sketch1.addConstraint(Sketcher.Constraint("DistanceX", 31, 1, -1, 1, 88.078816))
sketch1.addConstraint(Sketcher.Constraint("DistanceX", -1, 1, 47, 1, 87.758205))
sketch1.setExpression("Constraints[59]", "Params.sketch1_diameter")
sketch1.setExpression("Constraints[60]", "Params.sketch1_radius")
sketch1.setExpression("Constraints[61]", "Params.sketch1_radius2")
sketch1.setExpression("Constraints[62]", "Params.sketch1_radius3")
sketch1.setExpression("Constraints[63]", "Params.sketch1_radius4")
pad1 = body.newObject("PartDesign::Pad", "Pad")
pad1.Profile = sketch1
pad1.setExpression("Length", "Params.pad1_length")

sketch2 = body.newObject("Sketcher::SketchObject", "Sketch001")
sketch2.AttachmentSupport = (doc.getObject("XZ_Plane"), [""])
sketch2.MapMode = "FlatFace"
sketch2.addGeometry(Part.LineSegment(App.Vector(-40, 50, 0), App.Vector(-40, 20, 0)), False)
sketch2.addGeometry(Part.LineSegment(App.Vector(-40, 20, 0), App.Vector(0, 20, 0)), False)
sketch2.addGeometry(Part.LineSegment(App.Vector(0, 20, 0), App.Vector(0, 90, 0)), False)
sketch2.addGeometry(Part.LineSegment(App.Vector(0, 90, 0), App.Vector(-25, 90, 0)), False)
sketch2.addGeometry(Part.LineSegment(App.Vector(-25, 90, 0), App.Vector(-40, 50, 0)), False)
sketch2.addConstraint(Sketcher.Constraint("Coincident", 0, 2, 1, 1))
sketch2.addConstraint(Sketcher.Constraint("Coincident", 1, 2, 2, 1))
sketch2.addConstraint(Sketcher.Constraint("Coincident", 2, 2, 3, 1))
sketch2.addConstraint(Sketcher.Constraint("Coincident", 3, 2, 4, 1))
sketch2.addConstraint(Sketcher.Constraint("Coincident", 4, 2, 0, 1))
sketch2.addConstraint(Sketcher.Constraint("Vertical", 0))
sketch2.addConstraint(Sketcher.Constraint("Horizontal", 1))
sketch2.addConstraint(Sketcher.Constraint("Vertical", 2))
sketch2.addConstraint(Sketcher.Constraint("Horizontal", 3))
sketch2.addConstraint(Sketcher.Constraint("PointOnObject", 1, 2, -2))
sketch2.addConstraint(Sketcher.Constraint("DistanceX", 1, 1, 1, 2, 40.0))
sketch2.addConstraint(Sketcher.Constraint("DistanceY", 0, 2, 0, 1, 30.0))
sketch2.addConstraint(Sketcher.Constraint("DistanceY", 2, 1, 2, 2, 70.0))
sketch2.addConstraint(Sketcher.Constraint("Angle", 4, Q("-110 deg")))
sketch2.addConstraint(Sketcher.Constraint("DistanceY", -1, 1, 0, 2, 20.0))
sketch2.setExpression("Constraints[10]", "Params.sketch2_width")
sketch2.setExpression("Constraints[11]", "Params.sketch2_height")
sketch2.setExpression("Constraints[12]", "Params.sketch2_height2")
revolution = body.newObject("PartDesign::Revolution", "Revolution")
revolution.Profile = sketch2
revolution.ReferenceAxis = (sketch2, ["V_Axis"])
revolution.setExpression("Angle", "Params.revolution_angle")

sketch3 = body.newObject("Sketcher::SketchObject", "Sketch002")
sketch3.AttachmentSupport = (doc.getObject("XY_Plane"), [""])
sketch3.MapMode = "FlatFace"
sketch3.AttachmentOffset = App.Placement(App.Vector(0, 0, 90), App.Rotation())
sketch3.addGeometry(Part.Circle(App.Vector(0, 0, 0), App.Vector(0, 0, 1), 19), False)
sketch3.addConstraint(Sketcher.Constraint("Coincident", 0, 3, -1, 1))
sketch3.addConstraint(Sketcher.Constraint("Diameter", 0, 38.1))
sketch3.setExpression("Constraints[1]", "Params.sketch3_diameter")
pocket1 = body.newObject("PartDesign::Pocket", "Pocket")
pocket1.Profile = sketch3
pocket1.Type = "ThroughAll"

sketch4 = body.newObject("Sketcher::SketchObject", "Sketch003")
sketch4.AttachmentSupport = (doc.getObject("XY_Plane"), [""])
sketch4.MapMode = "FlatFace"
sketch4.addGeometry(Part.Circle(App.Vector(0, 0, 0), App.Vector(0, 0, 1), 43), False)
sketch4.addConstraint(Sketcher.Constraint("Coincident", 0, 3, -1, 1))
sketch4.addConstraint(Sketcher.Constraint("Diameter", 0, 85.1))
sketch4.setExpression("Constraints[1]", "Params.sketch4_diameter")
pocket2 = body.newObject("PartDesign::Pocket", "Pocket001")
pocket2.Profile = sketch4
pocket2.setExpression("Length", "Params.pocket2_length")
pocket2.Reversed = True

doc.recompute()
